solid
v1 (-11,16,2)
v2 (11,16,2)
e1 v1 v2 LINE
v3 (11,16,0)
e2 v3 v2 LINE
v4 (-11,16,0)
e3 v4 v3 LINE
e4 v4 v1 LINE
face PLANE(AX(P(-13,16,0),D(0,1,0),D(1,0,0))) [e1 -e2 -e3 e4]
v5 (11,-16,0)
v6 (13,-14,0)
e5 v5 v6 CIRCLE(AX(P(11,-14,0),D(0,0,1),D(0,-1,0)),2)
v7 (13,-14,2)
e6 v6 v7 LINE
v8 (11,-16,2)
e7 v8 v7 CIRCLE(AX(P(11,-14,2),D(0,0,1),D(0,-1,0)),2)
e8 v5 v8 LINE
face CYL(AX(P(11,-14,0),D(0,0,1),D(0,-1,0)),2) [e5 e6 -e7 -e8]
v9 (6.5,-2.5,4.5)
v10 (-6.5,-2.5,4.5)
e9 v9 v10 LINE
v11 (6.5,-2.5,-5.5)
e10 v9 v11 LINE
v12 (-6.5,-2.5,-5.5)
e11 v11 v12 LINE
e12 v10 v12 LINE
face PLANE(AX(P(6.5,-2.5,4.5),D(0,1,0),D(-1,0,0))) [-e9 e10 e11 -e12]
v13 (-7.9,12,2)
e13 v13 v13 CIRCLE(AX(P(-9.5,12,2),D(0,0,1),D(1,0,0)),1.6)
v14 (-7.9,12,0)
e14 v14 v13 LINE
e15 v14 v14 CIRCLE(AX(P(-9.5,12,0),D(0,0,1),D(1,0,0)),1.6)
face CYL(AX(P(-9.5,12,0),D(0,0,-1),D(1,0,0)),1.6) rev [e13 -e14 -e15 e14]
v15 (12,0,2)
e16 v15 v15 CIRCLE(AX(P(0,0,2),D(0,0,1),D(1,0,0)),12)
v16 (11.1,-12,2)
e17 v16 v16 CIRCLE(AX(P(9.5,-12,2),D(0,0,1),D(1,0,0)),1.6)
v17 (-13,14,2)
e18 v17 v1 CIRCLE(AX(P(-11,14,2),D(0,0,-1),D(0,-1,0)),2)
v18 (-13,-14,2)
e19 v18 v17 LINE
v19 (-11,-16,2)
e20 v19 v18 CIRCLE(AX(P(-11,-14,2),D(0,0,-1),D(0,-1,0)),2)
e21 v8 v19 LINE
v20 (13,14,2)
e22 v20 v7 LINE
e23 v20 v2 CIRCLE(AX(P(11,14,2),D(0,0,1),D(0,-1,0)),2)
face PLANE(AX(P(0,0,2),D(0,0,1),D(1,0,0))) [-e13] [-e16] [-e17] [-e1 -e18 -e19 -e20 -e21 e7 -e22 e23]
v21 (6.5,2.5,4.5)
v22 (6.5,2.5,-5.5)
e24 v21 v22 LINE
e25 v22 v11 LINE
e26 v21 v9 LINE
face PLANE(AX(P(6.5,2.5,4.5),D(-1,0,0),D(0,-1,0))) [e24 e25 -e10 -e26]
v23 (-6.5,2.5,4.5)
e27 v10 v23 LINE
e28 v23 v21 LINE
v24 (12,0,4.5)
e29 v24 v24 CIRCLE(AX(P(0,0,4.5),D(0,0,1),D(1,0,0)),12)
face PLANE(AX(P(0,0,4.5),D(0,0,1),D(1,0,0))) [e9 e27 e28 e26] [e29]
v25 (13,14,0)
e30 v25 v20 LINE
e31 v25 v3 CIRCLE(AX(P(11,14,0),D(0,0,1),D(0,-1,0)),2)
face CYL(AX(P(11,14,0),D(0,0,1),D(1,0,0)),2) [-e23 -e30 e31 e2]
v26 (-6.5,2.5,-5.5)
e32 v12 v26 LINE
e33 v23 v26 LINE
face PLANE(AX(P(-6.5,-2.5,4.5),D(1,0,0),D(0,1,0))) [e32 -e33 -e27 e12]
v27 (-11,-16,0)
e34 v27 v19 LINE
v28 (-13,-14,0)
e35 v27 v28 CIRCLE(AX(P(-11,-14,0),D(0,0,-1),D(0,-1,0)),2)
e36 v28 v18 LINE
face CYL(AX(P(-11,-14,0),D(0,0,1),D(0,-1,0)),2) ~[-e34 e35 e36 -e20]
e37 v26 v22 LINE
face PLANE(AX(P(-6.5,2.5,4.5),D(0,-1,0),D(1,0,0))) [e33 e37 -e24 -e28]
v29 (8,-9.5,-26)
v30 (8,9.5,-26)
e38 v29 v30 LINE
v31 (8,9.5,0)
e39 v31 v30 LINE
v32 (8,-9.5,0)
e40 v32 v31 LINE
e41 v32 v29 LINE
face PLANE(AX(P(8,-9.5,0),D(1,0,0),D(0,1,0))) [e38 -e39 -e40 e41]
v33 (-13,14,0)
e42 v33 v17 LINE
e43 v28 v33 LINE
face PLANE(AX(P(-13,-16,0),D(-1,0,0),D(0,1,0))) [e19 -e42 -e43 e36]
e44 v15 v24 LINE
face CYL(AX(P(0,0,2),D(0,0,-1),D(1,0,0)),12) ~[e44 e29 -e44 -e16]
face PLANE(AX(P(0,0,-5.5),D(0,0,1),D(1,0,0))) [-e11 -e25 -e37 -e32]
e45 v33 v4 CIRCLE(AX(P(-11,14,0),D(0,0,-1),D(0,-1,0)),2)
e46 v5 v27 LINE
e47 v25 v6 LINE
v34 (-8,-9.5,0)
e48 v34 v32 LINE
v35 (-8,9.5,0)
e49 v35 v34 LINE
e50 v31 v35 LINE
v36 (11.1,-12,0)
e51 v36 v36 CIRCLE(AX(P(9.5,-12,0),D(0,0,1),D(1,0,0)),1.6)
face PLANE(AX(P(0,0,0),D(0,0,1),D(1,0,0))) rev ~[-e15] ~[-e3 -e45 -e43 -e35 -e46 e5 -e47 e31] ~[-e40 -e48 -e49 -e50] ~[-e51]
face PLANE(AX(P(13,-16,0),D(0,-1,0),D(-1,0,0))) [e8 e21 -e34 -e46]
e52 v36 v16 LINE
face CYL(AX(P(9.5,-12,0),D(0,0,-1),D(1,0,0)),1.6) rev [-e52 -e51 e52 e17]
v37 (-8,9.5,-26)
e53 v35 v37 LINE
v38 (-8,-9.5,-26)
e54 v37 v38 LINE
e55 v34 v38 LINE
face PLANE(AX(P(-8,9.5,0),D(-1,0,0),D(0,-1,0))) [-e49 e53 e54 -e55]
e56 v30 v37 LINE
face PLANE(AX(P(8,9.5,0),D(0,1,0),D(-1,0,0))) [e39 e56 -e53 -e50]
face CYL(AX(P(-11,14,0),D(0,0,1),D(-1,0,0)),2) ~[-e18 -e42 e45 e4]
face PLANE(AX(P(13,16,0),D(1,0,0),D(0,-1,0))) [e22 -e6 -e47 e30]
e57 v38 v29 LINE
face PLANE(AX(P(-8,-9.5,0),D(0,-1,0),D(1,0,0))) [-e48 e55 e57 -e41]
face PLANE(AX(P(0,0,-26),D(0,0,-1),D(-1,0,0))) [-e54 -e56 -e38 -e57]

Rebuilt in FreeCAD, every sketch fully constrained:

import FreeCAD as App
import Part
import Sketcher
from FreeCAD import Vector
Q = App.Units.Quantity


def edges_at(feature, points):
    """Names of the edges that pass closest to the given points."""
    edges = feature.Shape.Edges
    near = lambda p: min(range(len(edges)), key=lambda i: edges[i].distToShape(Part.Vertex(*p))[0])
    return sorted({f"Edge{near(p) + 1}" for p in points})


def add_polygon(sketch, points):
    """Adds a closed chain of lines whose ends are joined by coincident constraints."""
    first, n = sketch.GeometryCount, len(points)
    for a, b in zip(points, points[1:] + points[:1]):
        sketch.addGeometry(Part.LineSegment(App.Vector(*a, 0), App.Vector(*b, 0)), False)
    for i in range(n):
        sketch.addConstraint(Sketcher.Constraint("Coincident", first + i, 2, first + (i + 1) % n, 1))

doc = App.newDocument("Part")
body = doc.addObject("PartDesign::Body", "Body")

# Sketch on XY plane
sketch1 = body.newObject("Sketcher::SketchObject", "Sketch")
sketch1.AttachmentSupport = (doc.getObject("XY_Plane"), [""])
sketch1.MapMode = "FlatFace"
add_polygon(sketch1, [(-13, -16), (13, -16), (13, 16), (-13, 16)])  # lines 0-3
sketch1.addGeometry(Part.Circle(Vector(9.5, -12, 0), Vector(0, 0, 1), 1.6), False)  # 4
sketch1.addGeometry(Part.Circle(Vector(-9.5, 12, 0), Vector(0, 0, 1), 1.6), False)  # 5
sketch1.addConstraint([
    Sketcher.Constraint("Horizontal", 0),
    Sketcher.Constraint("Vertical", 1),
    Sketcher.Constraint("Horizontal", 2),
    Sketcher.Constraint("Vertical", 3),
    Sketcher.Constraint("Equal", 4, 5),
    Sketcher.Constraint("Symmetric", 4, 3, 5, 3, -1, 1),
    Sketcher.Constraint("Symmetric", 0, 2, 2, 2, -1, 1),
    Sketcher.Constraint("Diameter", 4, Q("3.2 mm")),
    Sketcher.Constraint("DistanceX", 0, 1, 0, 2, Q("26 mm")),
    Sketcher.Constraint("DistanceY", 1, 1, 1, 2, Q("32 mm")),
    Sketcher.Constraint("DistanceY", 4, 3, -1, 1, Q("12 mm")),
    Sketcher.Constraint("DistanceX", -1, 1, 4, 3, Q("9.5 mm")),
])
pad1 = body.newObject("PartDesign::Pad", "Pad")
pad1.Profile = sketch1
pad1.Length = 2

# Sketch on XY plane
sketch2 = body.newObject("Sketcher::SketchObject", "Sketch001")
sketch2.AttachmentSupport = (doc.getObject("XY_Plane"), [""])
sketch2.MapMode = "FlatFace"
sketch2.AttachmentOffset = App.Placement(Vector(0, 0, 2), App.Rotation())
sketch2.addGeometry(Part.Circle(Vector(0, 0, 0), Vector(0, 0, 1), 12), False)
sketch2.addConstraint([
    Sketcher.Constraint("Coincident", 0, 3, -1, 1),
    Sketcher.Constraint("Diameter", 0, Q("24 mm")),
])
pad2 = body.newObject("PartDesign::Pad", "Pad001")
pad2.Profile = sketch2
pad2.Length = 2.5
doc.recompute()

fillet = body.newObject("PartDesign::Fillet", "Fillet")
fillet.Base = (pad2, edges_at(pad2, [
    (-13, 16, 1),
    (13, 16, 1),
    (-13, -16, 1),
    (13, -16, 1),
]))
fillet.Radius = 2

# Sketch on XY plane
sketch3 = body.newObject("Sketcher::SketchObject", "Sketch002")
sketch3.AttachmentSupport = (doc.getObject("XY_Plane"), [""])
sketch3.MapMode = "FlatFace"
add_polygon(sketch3, [(8, -10), (-8, -10), (-8, 10), (8, 10)])  # lines 0-3
sketch3.addConstraint([
    Sketcher.Constraint("Horizontal", 0),
    Sketcher.Constraint("Vertical", 1),
    Sketcher.Constraint("Horizontal", 2),
    Sketcher.Constraint("Vertical", 3),
    Sketcher.Constraint("Symmetric", 0, 2, 2, 2, -1, 1),
    Sketcher.Constraint("DistanceX", 0, 2, 0, 1, Q("16 mm")),
    Sketcher.Constraint("DistanceY", 1, 1, 1, 2, Q("19 mm")),
])
pad3 = body.newObject("PartDesign::Pad", "Pad002")
pad3.Profile = sketch3
pad3.Length = 26
pad3.Reversed = True

# Sketch on XY plane
sketch4 = body.newObject("Sketcher::SketchObject", "Sketch003")
sketch4.AttachmentSupport = (doc.getObject("XY_Plane"), [""])
sketch4.MapMode = "FlatFace"
sketch4.AttachmentOffset = App.Placement(Vector(0, 0, 4.5), App.Rotation())
add_polygon(sketch4, [(-6, -2), (6, -2), (6, 2), (-6, 2)])  # lines 0-3
sketch4.addConstraint([
    Sketcher.Constraint("Horizontal", 0),
    Sketcher.Constraint("Vertical", 1),
    Sketcher.Constraint("Horizontal", 2),
    Sketcher.Constraint("Vertical", 3),
    Sketcher.Constraint("Symmetric", 0, 2, 2, 2, -1, 1),
    Sketcher.Constraint("DistanceX", 0, 1, 0, 2, Q("13 mm")),
    Sketcher.Constraint("DistanceY", 1, 1, 1, 2, Q("5 mm")),
])
pocket1 = body.newObject("PartDesign::Pocket", "Pocket")
pocket1.Profile = sketch4
pocket1.Length = 10

doc.recompute()
